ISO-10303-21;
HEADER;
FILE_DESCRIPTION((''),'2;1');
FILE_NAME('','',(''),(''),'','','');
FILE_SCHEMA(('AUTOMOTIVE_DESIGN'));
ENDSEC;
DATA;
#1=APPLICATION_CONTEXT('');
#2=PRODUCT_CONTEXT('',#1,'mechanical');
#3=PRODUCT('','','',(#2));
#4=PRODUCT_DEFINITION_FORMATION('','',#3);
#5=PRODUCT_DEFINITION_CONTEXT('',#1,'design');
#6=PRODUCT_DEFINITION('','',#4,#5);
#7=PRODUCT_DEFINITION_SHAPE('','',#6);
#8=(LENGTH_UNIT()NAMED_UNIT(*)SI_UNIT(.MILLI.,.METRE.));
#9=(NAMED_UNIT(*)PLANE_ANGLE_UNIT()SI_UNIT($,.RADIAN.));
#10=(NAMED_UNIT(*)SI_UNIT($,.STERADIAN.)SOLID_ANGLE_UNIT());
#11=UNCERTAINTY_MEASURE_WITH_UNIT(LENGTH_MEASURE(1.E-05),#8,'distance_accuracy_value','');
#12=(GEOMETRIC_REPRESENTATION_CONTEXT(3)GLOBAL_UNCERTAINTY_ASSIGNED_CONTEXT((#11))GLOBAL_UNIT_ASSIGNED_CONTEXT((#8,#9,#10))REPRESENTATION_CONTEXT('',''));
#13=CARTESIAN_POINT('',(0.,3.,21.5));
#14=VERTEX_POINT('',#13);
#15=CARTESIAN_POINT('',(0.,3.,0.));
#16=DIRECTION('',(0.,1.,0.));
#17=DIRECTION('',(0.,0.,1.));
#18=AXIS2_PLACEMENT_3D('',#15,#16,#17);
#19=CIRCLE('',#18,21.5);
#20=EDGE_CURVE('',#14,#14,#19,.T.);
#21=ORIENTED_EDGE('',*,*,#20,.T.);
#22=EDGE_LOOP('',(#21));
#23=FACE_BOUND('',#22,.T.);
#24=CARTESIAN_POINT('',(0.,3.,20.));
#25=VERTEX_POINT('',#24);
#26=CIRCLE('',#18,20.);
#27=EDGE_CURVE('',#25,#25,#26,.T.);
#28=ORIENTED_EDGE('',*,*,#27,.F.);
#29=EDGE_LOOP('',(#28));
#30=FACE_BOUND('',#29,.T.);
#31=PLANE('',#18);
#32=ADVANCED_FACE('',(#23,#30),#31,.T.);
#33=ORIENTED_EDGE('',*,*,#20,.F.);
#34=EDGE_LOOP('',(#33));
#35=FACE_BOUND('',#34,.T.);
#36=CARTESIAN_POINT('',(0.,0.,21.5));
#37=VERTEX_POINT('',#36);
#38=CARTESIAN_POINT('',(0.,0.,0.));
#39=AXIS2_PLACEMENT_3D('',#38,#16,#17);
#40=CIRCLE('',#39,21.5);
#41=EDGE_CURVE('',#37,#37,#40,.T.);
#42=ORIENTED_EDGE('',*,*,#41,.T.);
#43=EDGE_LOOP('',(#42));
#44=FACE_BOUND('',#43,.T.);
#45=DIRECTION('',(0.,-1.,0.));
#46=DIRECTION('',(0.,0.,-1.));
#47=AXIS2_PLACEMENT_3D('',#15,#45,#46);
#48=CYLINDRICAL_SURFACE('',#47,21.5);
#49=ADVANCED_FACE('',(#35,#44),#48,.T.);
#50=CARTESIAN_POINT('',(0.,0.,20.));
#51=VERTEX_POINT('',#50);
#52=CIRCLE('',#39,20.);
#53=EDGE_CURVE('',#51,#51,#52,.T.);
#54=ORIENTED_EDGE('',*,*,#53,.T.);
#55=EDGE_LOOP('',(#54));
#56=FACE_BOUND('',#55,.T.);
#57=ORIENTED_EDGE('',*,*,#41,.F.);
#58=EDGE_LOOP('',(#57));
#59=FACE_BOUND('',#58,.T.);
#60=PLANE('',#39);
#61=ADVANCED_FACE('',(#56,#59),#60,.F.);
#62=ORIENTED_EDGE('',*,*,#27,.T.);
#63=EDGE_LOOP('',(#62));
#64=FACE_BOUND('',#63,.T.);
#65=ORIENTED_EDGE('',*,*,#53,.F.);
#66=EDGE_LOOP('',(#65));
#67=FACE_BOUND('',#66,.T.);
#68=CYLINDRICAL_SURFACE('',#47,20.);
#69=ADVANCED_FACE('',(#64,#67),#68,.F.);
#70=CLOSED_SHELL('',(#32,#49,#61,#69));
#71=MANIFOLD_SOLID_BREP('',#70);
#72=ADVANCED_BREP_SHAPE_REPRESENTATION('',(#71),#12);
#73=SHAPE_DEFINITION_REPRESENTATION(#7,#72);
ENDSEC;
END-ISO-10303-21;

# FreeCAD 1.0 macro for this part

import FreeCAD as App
import Part
import Sketcher
from FreeCAD import Vector
Q = App.Units.Quantity

doc = App.newDocument("Part")
body = doc.addObject("PartDesign::Body", "Body")

# Sketch on XZ plane
sketch1 = body.newObject("Sketcher::SketchObject", "Sketch")
sketch1.AttachmentSupport = (doc.getObject("XZ_Plane"), [""])
sketch1.MapMode = "FlatFace"
sketch1.addGeometry([
    Part.Circle(Vector(0, 0, 0), Vector(0, 0, 1), 22),
    Part.Circle(Vector(0, 0, 0), Vector(0, 0, 1), 20),
], False)
sketch1.addConstraint([
    Sketcher.Constraint("Coincident", 0, 3, -1, 1),
    Sketcher.Constraint("Coincident", 1, 3, -1, 1),
    Sketcher.Constraint("Diameter", 0, Q("43 mm")),
    Sketcher.Constraint("Diameter", 1, Q("40 mm")),
])
pad1 = body.newObject("PartDesign::Pad", "Pad")
pad1.Profile = sketch1
pad1.Length = 3
pad1.Reversed = True

doc.recompute()
